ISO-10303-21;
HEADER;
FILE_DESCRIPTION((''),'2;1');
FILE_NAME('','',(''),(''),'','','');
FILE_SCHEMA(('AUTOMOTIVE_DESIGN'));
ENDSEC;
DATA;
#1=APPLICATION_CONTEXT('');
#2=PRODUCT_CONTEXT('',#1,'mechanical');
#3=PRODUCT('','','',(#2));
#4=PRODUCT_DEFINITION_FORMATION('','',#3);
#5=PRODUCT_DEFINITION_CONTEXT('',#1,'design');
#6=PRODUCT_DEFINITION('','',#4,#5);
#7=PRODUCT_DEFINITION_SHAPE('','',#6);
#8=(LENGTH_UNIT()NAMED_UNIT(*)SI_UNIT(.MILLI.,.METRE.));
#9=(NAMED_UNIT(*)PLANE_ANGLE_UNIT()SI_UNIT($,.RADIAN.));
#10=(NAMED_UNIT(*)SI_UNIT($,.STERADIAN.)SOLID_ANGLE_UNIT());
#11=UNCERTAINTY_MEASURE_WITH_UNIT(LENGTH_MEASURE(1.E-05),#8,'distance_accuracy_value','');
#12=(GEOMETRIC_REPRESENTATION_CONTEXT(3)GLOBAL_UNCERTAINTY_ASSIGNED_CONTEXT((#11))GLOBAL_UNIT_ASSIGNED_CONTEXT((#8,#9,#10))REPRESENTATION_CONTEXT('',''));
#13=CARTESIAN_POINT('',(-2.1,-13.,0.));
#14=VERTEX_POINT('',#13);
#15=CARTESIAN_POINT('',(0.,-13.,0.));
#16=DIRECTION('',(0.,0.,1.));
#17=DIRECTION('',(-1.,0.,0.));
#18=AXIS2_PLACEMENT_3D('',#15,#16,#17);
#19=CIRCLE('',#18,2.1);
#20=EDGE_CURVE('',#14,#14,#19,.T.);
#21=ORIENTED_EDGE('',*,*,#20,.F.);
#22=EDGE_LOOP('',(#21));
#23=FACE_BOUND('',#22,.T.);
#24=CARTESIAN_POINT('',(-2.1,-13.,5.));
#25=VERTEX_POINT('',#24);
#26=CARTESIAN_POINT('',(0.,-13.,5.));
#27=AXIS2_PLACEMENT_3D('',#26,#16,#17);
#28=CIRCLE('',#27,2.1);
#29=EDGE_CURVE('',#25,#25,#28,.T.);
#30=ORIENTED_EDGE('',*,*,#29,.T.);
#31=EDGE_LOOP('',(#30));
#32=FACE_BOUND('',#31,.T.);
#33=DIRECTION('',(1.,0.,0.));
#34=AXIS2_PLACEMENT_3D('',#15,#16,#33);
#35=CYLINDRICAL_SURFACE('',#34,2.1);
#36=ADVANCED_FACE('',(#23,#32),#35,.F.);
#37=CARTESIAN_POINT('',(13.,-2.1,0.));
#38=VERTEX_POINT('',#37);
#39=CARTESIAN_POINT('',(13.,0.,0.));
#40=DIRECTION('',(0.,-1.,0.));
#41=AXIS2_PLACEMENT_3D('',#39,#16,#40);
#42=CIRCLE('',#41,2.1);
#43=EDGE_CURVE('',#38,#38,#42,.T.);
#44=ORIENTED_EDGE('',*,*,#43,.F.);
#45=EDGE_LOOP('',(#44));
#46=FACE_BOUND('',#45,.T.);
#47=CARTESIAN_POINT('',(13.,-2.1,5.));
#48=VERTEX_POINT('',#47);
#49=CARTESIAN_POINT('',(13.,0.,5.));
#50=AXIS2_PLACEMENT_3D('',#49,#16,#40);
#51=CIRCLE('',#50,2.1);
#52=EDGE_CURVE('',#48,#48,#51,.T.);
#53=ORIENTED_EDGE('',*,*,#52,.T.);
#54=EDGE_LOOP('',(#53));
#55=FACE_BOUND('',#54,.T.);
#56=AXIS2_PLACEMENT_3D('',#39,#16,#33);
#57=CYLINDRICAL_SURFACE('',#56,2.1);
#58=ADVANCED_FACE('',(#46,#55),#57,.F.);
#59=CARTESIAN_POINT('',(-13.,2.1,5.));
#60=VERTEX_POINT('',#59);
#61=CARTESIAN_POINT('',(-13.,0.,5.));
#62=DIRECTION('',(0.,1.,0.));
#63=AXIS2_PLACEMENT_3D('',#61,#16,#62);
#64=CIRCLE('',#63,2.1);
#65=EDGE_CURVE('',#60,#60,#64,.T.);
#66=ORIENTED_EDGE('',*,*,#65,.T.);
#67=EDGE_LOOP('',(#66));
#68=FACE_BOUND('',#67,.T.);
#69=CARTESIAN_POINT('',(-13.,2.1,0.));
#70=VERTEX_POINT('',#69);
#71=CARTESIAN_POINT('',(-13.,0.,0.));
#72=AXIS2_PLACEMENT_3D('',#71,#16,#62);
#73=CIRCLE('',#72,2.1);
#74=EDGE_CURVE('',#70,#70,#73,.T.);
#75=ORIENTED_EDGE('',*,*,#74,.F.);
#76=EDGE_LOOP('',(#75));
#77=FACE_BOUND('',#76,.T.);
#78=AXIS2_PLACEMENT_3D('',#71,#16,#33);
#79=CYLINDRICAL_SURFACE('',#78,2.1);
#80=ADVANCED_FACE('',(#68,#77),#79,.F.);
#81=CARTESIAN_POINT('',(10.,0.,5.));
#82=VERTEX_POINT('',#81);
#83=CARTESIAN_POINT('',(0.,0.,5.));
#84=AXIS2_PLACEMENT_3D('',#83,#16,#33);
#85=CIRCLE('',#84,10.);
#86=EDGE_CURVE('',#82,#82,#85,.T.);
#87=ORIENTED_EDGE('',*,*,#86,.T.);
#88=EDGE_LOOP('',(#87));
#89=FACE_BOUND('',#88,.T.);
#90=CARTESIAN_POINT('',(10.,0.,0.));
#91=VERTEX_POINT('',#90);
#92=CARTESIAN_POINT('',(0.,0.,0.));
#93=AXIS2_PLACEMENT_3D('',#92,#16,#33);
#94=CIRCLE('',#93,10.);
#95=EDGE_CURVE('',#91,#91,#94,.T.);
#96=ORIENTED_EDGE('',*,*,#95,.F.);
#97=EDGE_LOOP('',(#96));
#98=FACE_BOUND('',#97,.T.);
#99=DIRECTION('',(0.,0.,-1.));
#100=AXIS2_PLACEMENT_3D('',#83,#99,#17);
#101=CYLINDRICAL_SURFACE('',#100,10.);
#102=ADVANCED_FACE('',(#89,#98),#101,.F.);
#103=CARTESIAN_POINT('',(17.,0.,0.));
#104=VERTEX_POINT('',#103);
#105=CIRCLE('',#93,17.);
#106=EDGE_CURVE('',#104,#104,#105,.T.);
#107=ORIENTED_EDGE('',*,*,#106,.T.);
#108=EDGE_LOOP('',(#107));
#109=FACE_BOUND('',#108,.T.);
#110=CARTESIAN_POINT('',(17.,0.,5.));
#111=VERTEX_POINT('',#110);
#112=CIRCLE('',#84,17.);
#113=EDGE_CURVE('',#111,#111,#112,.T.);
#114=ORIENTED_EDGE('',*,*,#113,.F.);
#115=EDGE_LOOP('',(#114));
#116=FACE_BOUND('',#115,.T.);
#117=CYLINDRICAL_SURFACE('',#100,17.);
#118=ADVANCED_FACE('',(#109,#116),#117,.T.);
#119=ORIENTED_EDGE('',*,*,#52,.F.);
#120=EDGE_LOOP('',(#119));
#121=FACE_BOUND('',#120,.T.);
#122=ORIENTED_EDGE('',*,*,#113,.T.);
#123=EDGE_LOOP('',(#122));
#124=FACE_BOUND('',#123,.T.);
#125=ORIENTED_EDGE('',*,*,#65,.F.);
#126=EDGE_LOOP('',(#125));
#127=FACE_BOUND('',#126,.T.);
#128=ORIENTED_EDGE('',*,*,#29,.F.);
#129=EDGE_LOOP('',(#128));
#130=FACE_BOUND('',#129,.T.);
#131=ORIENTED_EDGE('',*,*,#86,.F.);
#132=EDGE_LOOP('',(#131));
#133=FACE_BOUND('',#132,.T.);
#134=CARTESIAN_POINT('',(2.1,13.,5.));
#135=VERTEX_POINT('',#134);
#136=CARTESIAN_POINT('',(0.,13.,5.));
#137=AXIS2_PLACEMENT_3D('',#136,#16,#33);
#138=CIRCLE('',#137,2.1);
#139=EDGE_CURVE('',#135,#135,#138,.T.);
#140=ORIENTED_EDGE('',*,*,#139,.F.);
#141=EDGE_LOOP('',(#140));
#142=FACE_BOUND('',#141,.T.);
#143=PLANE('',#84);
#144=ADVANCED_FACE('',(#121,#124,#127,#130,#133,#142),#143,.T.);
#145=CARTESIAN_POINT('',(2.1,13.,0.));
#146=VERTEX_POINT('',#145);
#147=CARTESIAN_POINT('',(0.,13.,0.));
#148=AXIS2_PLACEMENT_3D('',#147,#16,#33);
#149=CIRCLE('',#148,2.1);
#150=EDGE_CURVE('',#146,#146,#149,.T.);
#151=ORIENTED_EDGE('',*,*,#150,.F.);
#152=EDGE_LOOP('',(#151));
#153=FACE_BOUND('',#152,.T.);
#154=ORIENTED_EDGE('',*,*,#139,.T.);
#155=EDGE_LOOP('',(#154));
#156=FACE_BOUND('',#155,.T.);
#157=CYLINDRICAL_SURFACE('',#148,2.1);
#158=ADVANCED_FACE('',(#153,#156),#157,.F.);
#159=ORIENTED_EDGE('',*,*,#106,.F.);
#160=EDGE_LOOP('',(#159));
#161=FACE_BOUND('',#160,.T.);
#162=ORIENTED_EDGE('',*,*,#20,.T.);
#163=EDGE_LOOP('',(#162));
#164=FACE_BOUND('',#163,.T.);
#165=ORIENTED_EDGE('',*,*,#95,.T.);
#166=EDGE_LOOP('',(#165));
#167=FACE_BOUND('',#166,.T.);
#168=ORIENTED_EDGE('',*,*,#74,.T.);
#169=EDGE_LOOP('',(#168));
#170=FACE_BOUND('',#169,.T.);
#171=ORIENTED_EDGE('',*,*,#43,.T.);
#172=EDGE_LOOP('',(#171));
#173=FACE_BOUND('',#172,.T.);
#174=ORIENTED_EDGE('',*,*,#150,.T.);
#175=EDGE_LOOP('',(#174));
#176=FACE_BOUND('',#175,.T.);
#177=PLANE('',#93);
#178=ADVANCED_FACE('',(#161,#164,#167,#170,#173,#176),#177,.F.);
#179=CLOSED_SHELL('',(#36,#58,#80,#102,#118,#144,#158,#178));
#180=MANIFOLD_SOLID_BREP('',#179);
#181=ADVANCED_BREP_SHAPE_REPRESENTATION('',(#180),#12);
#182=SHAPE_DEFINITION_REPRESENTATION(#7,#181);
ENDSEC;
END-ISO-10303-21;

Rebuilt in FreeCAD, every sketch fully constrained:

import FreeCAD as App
import Part
import Sketcher
from FreeCAD import Vector
Q = App.Units.Quantity

doc = App.newDocument("Part")
params = doc.addObject("Spreadsheet::Sheet", "Params")
for row, (alias, value) in enumerate([
    ("sketch1_diameter", "34 mm"),
    ("sketch1_diameter2", "20 mm"),
    ("pad1_length", "5 mm"),
    ("sketch2_diameter", "4.2 mm"),
], start=1):
    params.set(f"A{row}", alias)
    params.set(f"B{row}", "=" + value)
    params.setAlias(f"B{row}", alias)

body = doc.addObject("PartDesign::Body", "Body")

sketch1 = body.newObject("Sketcher::SketchObject", "Sketch")
sketch1.AttachmentSupport = (doc.getObject("XY_Plane"), [""])
sketch1.MapMode = "FlatFace"
sketch1.addGeometry([
    Part.Circle(Vector(0, 0, 0), Vector(0, 0, 1), 17),
    Part.Circle(Vector(0, 0, 0), Vector(0, 0, 1), 10),
], False)
sketch1.addConstraint([
    Sketcher.Constraint("Coincident", 0, 3, -1, 1),
    Sketcher.Constraint("Coincident", 1, 3, -1, 1),
    Sketcher.Constraint("Diameter", 0, Q("34 mm")),
    Sketcher.Constraint("Diameter", 1, Q("20 mm")),
])
sketch1.setExpression("Constraints[2]", "Params.sketch1_diameter")
sketch1.setExpression("Constraints[3]", "Params.sketch1_diameter2")
pad1 = body.newObject("PartDesign::Pad", "Pad")
pad1.Profile = sketch1
pad1.setExpression("Length", "Params.pad1_length")

sketch2 = body.newObject("Sketcher::SketchObject", "Sketch001")
sketch2.AttachmentSupport = (doc.getObject("XY_Plane"), [""])
sketch2.MapMode = "FlatFace"
sketch2.AttachmentOffset = App.Placement(Vector(0, 0, 5), App.Rotation())
sketch2.addGeometry(Part.Circle(Vector(0, 13, 0), Vector(0, 0, 1), 2.1), False)
sketch2.addConstraint([
    Sketcher.Constraint("PointOnObject", 0, 3, -2),
    Sketcher.Constraint("Diameter", 0, Q("4.2 mm")),
    Sketcher.Constraint("DistanceY", -1, 1, 0, 3, Q("13 mm")),
])
sketch2.setExpression("Constraints[1]", "Params.sketch2_diameter")
pocket1 = body.newObject("PartDesign::Pocket", "Pocket")
pocket1.Profile = sketch2
pocket1.Type = "ThroughAll"
doc.recompute()

polarpattern = body.newObject("PartDesign::PolarPattern", "PolarPattern")
polarpattern.Originals = [pocket1]
polarpattern.Axis = (doc.getObject("Z_Axis"), [""])
polarpattern.Angle = 360
polarpattern.Occurrences = 4
body.Tip = polarpattern

doc.recompute()
